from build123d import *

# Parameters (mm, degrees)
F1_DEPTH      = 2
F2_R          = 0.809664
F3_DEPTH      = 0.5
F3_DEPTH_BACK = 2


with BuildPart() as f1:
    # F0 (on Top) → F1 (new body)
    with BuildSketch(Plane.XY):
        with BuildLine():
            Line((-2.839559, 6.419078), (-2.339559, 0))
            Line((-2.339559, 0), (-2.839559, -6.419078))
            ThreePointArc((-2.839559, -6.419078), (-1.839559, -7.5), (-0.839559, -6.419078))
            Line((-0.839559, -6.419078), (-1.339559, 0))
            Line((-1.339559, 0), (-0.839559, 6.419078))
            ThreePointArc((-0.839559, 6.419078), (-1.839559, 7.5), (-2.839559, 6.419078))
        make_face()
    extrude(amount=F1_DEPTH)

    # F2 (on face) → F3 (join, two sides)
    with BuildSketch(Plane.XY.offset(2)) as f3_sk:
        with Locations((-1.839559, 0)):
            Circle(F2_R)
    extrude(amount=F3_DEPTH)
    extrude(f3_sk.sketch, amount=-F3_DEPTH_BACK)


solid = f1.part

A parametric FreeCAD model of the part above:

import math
import FreeCAD as App
import Part
import Sketcher

doc = App.newDocument("Part")
body = doc.addObject("PartDesign::Body", "Body")

# Sketch on XY plane
sketch1 = body.newObject("Sketcher::SketchObject", "Sketch")
sketch1.AttachmentSupport = (doc.getObject("XY_Plane"), [""])
sketch1.MapMode = "FlatFace"
sketch1.addGeometry([
    Part.LineSegment(App.Vector(-2.8, 6.4, 0), App.Vector(-2.3, 0, 0)),  # 0
    Part.LineSegment(App.Vector(-2.3, 0, 0), App.Vector(-2.8, -6.4, 0)),  # 1
    Part.ArcOfCircle(Part.Circle(App.Vector(-1.8, -6.5, 0), App.Vector(0, 0, 1), 1), math.radians(176), math.radians(364)),  # 2
    Part.LineSegment(App.Vector(-0.8, -6.4, 0), App.Vector(-1.3, 0, 0)),  # 3
    Part.LineSegment(App.Vector(-1.3, 0, 0), App.Vector(-0.8, 6.4, 0)),  # 4
    Part.ArcOfCircle(Part.Circle(App.Vector(-1.8, 6.5, 0), App.Vector(0, 0, 1), 1), math.radians(-4), math.radians(184)),  # 5
], False)
sketch1.addConstraint([
    Sketcher.Constraint("Coincident", 0, 2, 1, 1),
    Sketcher.Constraint("Tangent", 1, 2, 2, 1),
    Sketcher.Constraint("Tangent", 2, 2, 3, 1),
    Sketcher.Constraint("Coincident", 3, 2, 4, 1),
    Sketcher.Constraint("Tangent", 4, 2, 5, 1),
    Sketcher.Constraint("Tangent", 5, 2, 0, 1),
    Sketcher.Constraint("Equal", 2, 5),
    Sketcher.Constraint("Symmetric", 2, 3, 5, 3, -1),
    Sketcher.Constraint("PointOnObject", 0, 2, -1),
    Sketcher.Constraint("PointOnObject", 3, 2, -1),
    Sketcher.Constraint("Parallel", 0, 3),
    Sketcher.Constraint("DistanceX", 1, 2, 2, 3, 1.0),
    Sketcher.Constraint("DistanceX", 0, 2, 3, 2, 1.0),
    Sketcher.Constraint("Distance", 0, 6.438522),
    Sketcher.Constraint("DistanceX", 2, 3, -1, 1, 1.839559),
])
pad1 = body.newObject("PartDesign::Pad", "Pad")
pad1.Profile = sketch1
pad1.Length = 2

# Sketch on XY plane
sketch2 = body.newObject("Sketcher::SketchObject", "Sketch001")
sketch2.AttachmentSupport = (doc.getObject("XY_Plane"), [""])
sketch2.MapMode = "FlatFace"
sketch2.AttachmentOffset = App.Placement(App.Vector(0, 0, 2), App.Rotation())
sketch2.addGeometry(Part.Circle(App.Vector(-1.8, 0, 0), App.Vector(0, 0, 1), 0.8), False)
sketch2.addConstraint([
    Sketcher.Constraint("PointOnObject", 0, 3, -1),
    Sketcher.Constraint("Diameter", 0, 1.619328),
    Sketcher.Constraint("DistanceX", 0, 3, -1, 1, 1.839559),
])
pad2 = body.newObject("PartDesign::Pad", "Pad001")
pad2.Profile = sketch2
pad2.Type = "TwoLengths"
pad2.Length = 0.5
pad2.Length2 = 2

doc.recompute()
